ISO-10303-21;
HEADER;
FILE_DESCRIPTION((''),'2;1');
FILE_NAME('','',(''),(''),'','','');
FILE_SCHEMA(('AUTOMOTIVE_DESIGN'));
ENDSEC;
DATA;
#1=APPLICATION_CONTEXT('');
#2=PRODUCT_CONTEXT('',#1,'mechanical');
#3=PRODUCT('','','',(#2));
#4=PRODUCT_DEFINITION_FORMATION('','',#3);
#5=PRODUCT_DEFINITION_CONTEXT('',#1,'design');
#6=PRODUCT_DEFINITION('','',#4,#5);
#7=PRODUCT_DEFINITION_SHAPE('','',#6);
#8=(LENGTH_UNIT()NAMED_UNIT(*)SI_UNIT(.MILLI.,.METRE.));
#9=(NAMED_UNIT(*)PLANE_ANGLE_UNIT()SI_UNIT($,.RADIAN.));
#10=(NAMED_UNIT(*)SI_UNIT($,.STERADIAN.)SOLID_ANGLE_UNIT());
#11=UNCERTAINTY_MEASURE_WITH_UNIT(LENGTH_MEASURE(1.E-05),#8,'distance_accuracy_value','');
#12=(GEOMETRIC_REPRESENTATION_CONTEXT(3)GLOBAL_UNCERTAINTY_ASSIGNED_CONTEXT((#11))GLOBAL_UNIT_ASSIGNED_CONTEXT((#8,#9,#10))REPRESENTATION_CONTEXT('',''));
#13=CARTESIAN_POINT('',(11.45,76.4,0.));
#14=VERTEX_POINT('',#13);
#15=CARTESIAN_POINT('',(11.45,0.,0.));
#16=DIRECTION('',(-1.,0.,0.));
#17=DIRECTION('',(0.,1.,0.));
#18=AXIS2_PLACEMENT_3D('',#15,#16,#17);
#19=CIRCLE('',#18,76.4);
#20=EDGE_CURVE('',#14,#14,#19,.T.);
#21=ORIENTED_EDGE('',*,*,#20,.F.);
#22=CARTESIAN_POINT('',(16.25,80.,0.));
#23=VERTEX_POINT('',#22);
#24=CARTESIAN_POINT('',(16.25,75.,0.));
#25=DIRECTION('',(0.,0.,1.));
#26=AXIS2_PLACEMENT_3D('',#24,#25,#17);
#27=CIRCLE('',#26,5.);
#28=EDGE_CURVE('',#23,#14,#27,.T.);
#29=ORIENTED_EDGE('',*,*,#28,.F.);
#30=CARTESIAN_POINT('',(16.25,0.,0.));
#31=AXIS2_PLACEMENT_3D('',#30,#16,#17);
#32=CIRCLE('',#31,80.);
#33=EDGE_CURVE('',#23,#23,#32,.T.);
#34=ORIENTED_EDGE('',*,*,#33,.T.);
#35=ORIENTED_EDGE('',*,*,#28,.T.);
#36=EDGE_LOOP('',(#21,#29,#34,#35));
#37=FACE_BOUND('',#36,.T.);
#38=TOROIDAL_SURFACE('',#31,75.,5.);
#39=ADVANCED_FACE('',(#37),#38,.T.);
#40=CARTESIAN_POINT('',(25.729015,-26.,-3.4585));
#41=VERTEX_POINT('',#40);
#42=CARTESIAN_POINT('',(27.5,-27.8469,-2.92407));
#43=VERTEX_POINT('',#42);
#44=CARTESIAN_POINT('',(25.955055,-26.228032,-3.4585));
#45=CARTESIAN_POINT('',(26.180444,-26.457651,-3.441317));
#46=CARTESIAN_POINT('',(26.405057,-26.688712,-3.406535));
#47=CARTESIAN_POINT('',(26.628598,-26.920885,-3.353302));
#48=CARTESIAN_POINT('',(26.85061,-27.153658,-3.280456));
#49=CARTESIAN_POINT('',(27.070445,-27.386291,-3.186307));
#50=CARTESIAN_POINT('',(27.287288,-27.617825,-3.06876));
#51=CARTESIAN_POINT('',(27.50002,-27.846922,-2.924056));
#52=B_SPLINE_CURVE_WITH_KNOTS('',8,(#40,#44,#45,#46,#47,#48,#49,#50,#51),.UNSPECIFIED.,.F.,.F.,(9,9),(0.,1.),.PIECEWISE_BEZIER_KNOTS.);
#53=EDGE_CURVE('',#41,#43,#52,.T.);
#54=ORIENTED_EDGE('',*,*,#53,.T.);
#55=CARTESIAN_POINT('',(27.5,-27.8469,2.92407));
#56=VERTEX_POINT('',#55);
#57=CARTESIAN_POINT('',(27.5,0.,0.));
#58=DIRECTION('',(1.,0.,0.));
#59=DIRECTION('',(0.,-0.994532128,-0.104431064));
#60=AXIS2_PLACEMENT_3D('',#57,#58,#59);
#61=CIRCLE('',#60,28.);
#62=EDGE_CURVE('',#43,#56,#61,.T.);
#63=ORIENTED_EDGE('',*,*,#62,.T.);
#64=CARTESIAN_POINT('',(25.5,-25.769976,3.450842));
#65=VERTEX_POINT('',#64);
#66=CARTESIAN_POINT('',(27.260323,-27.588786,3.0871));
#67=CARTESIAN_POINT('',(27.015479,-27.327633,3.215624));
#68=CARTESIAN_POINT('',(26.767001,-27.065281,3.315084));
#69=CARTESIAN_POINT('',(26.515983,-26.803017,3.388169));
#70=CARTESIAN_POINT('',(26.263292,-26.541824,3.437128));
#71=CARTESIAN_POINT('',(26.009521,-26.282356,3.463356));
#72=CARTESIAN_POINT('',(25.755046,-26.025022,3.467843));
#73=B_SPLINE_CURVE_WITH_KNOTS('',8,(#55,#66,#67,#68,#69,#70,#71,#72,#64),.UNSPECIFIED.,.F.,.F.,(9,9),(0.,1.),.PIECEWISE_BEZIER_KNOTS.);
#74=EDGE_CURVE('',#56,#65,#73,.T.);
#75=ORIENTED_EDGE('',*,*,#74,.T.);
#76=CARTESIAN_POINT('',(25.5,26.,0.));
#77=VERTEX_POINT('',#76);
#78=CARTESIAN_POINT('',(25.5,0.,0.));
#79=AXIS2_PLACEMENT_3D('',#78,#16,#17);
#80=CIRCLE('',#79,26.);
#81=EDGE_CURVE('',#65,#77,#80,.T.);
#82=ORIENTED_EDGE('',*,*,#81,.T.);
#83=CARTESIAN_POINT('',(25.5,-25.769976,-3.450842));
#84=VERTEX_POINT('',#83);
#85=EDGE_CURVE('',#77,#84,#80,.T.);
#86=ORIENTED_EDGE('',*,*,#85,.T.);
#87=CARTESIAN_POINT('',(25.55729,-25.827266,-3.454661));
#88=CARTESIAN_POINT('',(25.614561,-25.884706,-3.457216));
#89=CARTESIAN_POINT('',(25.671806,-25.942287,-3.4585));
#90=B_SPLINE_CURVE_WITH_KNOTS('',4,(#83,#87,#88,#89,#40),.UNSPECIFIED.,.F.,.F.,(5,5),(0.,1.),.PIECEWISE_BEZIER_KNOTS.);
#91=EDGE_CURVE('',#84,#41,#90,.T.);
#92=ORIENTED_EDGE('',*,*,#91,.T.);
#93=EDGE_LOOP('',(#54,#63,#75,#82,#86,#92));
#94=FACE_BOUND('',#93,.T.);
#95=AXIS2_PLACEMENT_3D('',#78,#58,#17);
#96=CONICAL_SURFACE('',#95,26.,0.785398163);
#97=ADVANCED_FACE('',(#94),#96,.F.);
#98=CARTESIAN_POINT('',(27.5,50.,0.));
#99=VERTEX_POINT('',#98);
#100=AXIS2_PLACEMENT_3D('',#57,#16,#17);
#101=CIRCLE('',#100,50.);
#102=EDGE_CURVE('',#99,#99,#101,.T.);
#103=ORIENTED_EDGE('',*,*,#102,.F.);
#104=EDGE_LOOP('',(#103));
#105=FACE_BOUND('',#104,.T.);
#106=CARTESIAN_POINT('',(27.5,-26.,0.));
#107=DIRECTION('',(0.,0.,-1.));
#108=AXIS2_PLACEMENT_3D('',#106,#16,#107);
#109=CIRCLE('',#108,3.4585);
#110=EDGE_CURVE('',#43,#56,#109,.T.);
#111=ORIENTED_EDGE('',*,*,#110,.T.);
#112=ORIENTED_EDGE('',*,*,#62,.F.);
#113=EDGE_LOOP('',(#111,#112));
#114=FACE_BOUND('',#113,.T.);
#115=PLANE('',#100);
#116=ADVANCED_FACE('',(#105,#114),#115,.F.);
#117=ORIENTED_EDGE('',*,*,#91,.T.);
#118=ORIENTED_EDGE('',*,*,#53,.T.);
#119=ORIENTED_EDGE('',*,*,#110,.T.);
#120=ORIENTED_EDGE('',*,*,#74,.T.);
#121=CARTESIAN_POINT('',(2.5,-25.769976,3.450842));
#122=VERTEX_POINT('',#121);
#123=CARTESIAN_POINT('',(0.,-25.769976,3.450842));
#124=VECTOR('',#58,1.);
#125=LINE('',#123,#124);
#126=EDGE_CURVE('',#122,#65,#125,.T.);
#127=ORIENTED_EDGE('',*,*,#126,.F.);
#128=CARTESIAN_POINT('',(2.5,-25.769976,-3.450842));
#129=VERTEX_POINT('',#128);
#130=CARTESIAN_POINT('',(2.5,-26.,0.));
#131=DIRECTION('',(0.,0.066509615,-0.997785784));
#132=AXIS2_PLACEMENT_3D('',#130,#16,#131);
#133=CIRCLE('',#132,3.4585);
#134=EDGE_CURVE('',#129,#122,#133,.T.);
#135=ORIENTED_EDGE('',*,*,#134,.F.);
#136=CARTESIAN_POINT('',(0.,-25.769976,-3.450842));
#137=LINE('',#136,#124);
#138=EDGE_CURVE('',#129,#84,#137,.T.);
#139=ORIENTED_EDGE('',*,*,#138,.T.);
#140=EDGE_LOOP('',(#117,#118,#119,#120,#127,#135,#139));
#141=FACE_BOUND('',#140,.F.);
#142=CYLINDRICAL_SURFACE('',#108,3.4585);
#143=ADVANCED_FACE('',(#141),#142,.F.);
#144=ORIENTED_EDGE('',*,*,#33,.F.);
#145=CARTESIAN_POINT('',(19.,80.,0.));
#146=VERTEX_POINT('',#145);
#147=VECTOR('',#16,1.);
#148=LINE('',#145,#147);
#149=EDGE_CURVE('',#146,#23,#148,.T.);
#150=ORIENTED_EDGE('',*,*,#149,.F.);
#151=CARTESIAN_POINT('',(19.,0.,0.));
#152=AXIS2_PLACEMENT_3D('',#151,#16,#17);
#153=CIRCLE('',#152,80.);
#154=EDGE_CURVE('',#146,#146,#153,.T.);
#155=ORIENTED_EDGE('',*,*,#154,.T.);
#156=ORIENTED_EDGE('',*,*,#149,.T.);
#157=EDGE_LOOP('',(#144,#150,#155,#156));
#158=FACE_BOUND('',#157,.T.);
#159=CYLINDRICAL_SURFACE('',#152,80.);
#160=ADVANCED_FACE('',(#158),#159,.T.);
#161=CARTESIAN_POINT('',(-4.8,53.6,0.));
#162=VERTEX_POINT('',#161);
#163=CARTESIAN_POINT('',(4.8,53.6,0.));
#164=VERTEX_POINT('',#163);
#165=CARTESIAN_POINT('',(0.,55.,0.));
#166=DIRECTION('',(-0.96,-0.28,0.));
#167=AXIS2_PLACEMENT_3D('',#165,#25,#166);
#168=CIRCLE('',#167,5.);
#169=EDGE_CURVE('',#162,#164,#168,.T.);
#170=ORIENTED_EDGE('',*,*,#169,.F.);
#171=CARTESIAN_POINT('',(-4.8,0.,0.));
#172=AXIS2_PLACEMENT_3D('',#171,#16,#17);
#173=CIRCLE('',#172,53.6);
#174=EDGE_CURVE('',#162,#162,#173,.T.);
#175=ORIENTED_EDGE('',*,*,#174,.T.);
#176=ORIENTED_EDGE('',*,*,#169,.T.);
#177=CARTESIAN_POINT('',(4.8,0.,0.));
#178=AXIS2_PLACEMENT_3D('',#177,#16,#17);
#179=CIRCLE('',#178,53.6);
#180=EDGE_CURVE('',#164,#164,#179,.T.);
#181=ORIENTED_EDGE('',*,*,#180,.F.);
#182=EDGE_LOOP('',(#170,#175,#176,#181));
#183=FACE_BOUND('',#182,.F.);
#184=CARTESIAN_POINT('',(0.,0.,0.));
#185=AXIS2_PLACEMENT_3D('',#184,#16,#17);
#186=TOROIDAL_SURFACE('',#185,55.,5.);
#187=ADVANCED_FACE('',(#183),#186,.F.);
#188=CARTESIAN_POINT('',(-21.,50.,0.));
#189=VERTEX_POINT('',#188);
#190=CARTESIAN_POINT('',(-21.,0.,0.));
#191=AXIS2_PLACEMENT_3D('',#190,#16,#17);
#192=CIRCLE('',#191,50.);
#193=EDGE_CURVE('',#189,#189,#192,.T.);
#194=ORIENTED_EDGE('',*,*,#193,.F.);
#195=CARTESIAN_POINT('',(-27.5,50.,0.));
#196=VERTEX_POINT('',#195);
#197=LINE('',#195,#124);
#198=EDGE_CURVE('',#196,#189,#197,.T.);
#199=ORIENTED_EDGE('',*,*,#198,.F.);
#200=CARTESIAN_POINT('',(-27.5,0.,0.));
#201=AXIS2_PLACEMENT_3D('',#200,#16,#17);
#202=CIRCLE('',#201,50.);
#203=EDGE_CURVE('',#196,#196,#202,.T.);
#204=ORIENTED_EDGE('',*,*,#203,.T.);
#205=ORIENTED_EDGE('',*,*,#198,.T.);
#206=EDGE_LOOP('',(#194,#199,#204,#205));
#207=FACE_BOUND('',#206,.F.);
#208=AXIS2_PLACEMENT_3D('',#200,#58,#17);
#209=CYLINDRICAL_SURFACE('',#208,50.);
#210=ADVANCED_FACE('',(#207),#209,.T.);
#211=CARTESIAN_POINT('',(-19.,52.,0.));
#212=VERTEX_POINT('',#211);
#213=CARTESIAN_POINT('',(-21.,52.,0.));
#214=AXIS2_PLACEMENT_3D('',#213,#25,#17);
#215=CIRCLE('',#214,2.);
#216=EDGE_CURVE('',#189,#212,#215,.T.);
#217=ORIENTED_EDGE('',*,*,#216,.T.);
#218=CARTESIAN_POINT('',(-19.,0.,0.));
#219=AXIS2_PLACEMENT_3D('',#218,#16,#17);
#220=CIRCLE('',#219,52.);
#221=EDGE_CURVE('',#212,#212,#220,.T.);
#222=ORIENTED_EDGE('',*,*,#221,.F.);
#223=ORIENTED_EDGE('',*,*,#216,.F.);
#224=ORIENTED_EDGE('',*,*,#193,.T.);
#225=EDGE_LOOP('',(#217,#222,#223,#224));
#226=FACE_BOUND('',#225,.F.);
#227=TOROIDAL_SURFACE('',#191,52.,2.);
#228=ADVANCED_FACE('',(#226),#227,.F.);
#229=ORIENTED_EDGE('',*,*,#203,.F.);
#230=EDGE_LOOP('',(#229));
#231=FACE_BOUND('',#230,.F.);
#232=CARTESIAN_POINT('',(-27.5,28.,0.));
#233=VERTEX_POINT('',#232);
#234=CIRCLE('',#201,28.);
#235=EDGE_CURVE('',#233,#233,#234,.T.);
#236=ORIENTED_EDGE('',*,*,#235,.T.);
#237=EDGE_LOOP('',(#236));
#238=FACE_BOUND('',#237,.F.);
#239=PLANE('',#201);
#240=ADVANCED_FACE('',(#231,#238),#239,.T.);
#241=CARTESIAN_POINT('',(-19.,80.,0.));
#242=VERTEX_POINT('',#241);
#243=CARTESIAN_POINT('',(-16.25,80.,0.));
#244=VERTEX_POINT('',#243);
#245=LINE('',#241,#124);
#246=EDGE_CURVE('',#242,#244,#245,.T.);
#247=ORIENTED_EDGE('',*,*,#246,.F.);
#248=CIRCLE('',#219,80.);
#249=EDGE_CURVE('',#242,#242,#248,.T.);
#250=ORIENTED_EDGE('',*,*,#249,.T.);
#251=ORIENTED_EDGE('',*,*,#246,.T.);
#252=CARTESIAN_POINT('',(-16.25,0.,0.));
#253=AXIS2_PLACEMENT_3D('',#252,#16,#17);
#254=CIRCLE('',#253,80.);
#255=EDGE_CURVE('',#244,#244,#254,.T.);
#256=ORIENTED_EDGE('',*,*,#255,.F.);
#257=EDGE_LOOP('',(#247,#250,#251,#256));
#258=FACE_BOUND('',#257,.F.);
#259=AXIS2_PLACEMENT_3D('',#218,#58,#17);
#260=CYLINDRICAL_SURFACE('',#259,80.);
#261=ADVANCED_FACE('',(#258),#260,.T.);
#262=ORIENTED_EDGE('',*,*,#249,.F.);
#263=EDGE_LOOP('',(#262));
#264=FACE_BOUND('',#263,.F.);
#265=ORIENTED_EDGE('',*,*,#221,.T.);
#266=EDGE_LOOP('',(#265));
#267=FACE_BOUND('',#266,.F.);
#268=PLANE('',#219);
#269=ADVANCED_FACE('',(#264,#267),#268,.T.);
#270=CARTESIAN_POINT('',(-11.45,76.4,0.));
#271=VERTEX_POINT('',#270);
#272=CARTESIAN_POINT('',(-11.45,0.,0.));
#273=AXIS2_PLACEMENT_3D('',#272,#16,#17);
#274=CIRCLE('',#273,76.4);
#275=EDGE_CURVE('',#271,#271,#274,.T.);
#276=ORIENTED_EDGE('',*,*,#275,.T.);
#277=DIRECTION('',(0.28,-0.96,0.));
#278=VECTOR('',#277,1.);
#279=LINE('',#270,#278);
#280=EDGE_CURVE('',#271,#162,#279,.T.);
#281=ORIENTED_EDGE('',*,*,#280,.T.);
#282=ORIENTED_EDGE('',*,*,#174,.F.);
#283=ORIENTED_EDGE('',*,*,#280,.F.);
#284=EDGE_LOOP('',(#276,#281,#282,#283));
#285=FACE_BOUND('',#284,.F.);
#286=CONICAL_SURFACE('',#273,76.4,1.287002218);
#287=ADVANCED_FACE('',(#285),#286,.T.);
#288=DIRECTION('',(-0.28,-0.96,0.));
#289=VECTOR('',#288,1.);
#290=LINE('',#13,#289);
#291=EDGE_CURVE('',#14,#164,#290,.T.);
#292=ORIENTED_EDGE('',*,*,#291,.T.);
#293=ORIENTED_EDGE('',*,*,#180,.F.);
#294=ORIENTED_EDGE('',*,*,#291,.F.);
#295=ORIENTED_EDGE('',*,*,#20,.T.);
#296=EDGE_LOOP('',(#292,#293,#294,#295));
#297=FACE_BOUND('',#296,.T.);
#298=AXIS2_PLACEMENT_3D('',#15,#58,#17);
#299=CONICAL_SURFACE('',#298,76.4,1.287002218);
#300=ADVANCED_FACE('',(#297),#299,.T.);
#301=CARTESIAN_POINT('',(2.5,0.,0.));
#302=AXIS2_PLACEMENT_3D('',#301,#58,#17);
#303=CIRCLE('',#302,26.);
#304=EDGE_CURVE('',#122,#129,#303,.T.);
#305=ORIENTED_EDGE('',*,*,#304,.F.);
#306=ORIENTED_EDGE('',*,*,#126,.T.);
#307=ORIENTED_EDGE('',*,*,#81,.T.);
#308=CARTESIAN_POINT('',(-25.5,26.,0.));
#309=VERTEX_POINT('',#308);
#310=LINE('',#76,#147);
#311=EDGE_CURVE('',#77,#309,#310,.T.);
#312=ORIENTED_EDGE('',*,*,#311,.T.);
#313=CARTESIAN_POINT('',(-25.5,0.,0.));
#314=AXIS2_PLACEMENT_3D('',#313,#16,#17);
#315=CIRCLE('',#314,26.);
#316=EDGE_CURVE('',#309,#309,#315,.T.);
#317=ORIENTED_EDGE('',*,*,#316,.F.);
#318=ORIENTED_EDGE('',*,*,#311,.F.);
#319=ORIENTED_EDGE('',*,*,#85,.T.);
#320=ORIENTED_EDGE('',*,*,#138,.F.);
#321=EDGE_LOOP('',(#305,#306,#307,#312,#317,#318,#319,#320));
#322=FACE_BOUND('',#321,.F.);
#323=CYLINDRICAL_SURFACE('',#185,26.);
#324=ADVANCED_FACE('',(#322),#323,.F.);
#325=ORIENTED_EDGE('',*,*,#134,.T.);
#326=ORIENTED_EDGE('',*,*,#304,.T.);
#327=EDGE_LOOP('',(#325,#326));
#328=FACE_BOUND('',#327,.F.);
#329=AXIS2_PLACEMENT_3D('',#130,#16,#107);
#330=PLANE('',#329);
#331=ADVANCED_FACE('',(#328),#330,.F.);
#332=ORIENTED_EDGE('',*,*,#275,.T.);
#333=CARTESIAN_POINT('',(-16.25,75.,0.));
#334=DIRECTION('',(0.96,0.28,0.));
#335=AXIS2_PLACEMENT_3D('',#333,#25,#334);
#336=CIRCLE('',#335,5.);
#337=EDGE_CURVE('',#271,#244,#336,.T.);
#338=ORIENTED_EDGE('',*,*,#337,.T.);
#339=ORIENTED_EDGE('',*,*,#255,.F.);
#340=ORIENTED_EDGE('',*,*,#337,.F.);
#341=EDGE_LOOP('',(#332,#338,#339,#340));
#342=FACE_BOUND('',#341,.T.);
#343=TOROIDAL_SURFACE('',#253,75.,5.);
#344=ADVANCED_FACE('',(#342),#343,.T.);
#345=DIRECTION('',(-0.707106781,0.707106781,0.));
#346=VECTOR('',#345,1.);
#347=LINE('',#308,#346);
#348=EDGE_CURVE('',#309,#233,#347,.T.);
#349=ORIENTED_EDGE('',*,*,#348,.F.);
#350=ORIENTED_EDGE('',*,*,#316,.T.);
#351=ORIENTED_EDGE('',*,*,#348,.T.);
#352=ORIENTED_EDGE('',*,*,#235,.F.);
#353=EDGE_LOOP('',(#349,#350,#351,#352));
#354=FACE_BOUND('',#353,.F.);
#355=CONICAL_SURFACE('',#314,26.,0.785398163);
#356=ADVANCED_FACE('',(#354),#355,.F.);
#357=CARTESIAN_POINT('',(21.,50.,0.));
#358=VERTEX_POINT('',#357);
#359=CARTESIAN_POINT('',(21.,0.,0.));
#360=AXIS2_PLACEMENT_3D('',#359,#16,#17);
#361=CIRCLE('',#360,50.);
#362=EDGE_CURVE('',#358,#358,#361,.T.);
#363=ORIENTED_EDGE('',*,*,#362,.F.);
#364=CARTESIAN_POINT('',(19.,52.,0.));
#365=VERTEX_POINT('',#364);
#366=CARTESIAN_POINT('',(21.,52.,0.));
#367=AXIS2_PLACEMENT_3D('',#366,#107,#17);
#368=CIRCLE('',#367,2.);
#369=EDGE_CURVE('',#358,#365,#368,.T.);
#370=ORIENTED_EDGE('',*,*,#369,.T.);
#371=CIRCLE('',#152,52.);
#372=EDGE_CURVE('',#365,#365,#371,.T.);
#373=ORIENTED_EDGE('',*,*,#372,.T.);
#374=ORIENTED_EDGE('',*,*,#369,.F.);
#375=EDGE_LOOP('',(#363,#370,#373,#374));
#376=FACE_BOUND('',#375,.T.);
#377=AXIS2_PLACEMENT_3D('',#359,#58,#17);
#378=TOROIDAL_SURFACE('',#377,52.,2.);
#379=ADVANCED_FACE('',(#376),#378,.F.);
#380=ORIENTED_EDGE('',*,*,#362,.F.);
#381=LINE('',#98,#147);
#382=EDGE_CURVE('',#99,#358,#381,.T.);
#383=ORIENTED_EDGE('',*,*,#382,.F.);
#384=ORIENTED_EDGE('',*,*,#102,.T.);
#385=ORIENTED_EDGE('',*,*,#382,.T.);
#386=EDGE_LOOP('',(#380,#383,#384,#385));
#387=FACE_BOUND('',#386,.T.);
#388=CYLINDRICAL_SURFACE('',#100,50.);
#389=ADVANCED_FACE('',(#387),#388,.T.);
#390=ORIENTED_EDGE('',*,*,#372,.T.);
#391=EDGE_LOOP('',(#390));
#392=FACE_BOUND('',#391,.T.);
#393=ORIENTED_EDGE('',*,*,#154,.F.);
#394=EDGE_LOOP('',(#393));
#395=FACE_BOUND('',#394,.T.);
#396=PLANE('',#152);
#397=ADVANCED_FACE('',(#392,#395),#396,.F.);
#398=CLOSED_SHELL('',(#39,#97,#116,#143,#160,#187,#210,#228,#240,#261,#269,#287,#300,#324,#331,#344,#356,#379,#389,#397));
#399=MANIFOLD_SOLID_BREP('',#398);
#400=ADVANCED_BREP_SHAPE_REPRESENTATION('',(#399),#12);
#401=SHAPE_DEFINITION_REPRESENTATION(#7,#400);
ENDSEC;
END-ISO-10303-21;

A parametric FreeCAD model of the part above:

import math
import FreeCAD as App
import Part
import Sketcher
from FreeCAD import Vector


def edges_at(feature, points):
    """Names of the edges that pass closest to the given points."""
    edges = feature.Shape.Edges
    near = lambda p: min(range(len(edges)), key=lambda i: edges[i].distToShape(Part.Vertex(*p))[0])
    return sorted({f"Edge{near(p) + 1}" for p in points})

doc = App.newDocument("Part")
body = doc.addObject("PartDesign::Body", "Body")

# Sketch on XY plane
sketch1 = body.newObject("Sketcher::SketchObject", "Sketch")
sketch1.AttachmentSupport = (doc.getObject("XY_Plane"), [""])
sketch1.MapMode = "FlatFace"
sketch1.addGeometry([
    Part.LineSegment(Vector(-25.5, 26, 0), Vector(25.5, 26, 0)),  # 0
    Part.LineSegment(Vector(25.5, 26, 0), Vector(27.5, 28, 0)),  # 1
    Part.LineSegment(Vector(27.5, 28, 0), Vector(27.5, 50, 0)),  # 2
    Part.LineSegment(Vector(27.5, 50, 0), Vector(19, 50, 0)),  # 3
    Part.LineSegment(Vector(19, 50, 0), Vector(19, 80, 0)),  # 4
    Part.LineSegment(Vector(19, 80, 0), Vector(16.2, 80, 0)),  # 5
    Part.ArcOfCircle(Part.Circle(Vector(16.2, 75, 0), Vector(0, 0, 1), 5), math.radians(90), math.radians(164)),  # 6
    Part.LineSegment(Vector(11.4, 76.4, 0), Vector(4.8, 53.6, 0)),  # 7
    Part.ArcOfCircle(Part.Circle(Vector(0, 55, 0), Vector(0, 0, 1), 5), math.radians(-164), math.radians(-16)),  # 8
    Part.LineSegment(Vector(-4.8, 53.6, 0), Vector(-11.4, 76.4, 0)),  # 9
    Part.ArcOfCircle(Part.Circle(Vector(-16.2, 75, 0), Vector(0, 0, 1), 5), math.radians(16), math.radians(90)),  # 10
    Part.LineSegment(Vector(-16.2, 80, 0), Vector(-19, 80, 0)),  # 11
    Part.LineSegment(Vector(-19, 80, 0), Vector(-19, 50, 0)),  # 12
    Part.LineSegment(Vector(-19, 50, 0), Vector(-27.5, 50, 0)),  # 13
    Part.LineSegment(Vector(-27.5, 50, 0), Vector(-27.5, 28, 0)),  # 14
    Part.LineSegment(Vector(-27.5, 28, 0), Vector(-25.5, 26, 0)),  # 15
], False)
sketch1.addConstraint([
    Sketcher.Constraint("Coincident", 0, 2, 1, 1),
    Sketcher.Constraint("Coincident", 1, 2, 2, 1),
    Sketcher.Constraint("Coincident", 2, 2, 3, 1),
    Sketcher.Constraint("Coincident", 3, 2, 4, 1),
    Sketcher.Constraint("Coincident", 4, 2, 5, 1),
    Sketcher.Constraint("Tangent", 5, 2, 6, 1),
    Sketcher.Constraint("Tangent", 6, 2, 7, 1),
    Sketcher.Constraint("Tangent", 7, 2, 8, 2),
    Sketcher.Constraint("Tangent", 8, 1, 9, 1),
    Sketcher.Constraint("Tangent", 9, 2, 10, 1),
    Sketcher.Constraint("Tangent", 10, 2, 11, 1),
    Sketcher.Constraint("Coincident", 11, 2, 12, 1),
    Sketcher.Constraint("Coincident", 12, 2, 13, 1),
    Sketcher.Constraint("Coincident", 13, 2, 14, 1),
    Sketcher.Constraint("Coincident", 14, 2, 15, 1),
    Sketcher.Constraint("Coincident", 15, 2, 0, 1),
    Sketcher.Constraint("Horizontal", 0),
    Sketcher.Constraint("Vertical", 2),
    Sketcher.Constraint("Horizontal", 3),
    Sketcher.Constraint("Vertical", 4),
    Sketcher.Constraint("Horizontal", 5),
    Sketcher.Constraint("Horizontal", 11),
    Sketcher.Constraint("Vertical", 12),
    Sketcher.Constraint("Horizontal", 13),
    Sketcher.Constraint("Vertical", 14),
    Sketcher.Constraint("Equal", 6, 8),
    Sketcher.Constraint("Equal", 8, 10),
    Sketcher.Constraint("Symmetric", 6, 3, 10, 3, -2),
    Sketcher.Constraint("Symmetric", 3, 2, 12, 2, -2),
    Sketcher.Constraint("Symmetric", 1, 2, 14, 2, -2),
    Sketcher.Constraint("PointOnObject", 8, 3, -2),
    Sketcher.Constraint("Perpendicular", 1, 15),
    Sketcher.Constraint("Equal", 1, 15),
    Sketcher.Constraint("Radius", 6, 5.0),
    Sketcher.Constraint("DistanceY", -1, 1, 8, 3, 55.0),
    Sketcher.Constraint("DistanceX", 0, 2, 1, 2, 2.0),
    Sketcher.Constraint("DistanceY", 2, 2, 6, 3, 25.0),
    Sketcher.Constraint("DistanceY", 2, 2, 8, 3, 5.0),
    Sketcher.Constraint("DistanceX", 0, 1, 0, 2, 51.0),
    Sketcher.Constraint("DistanceY", 2, 1, 2, 2, 22.0),
    Sketcher.Constraint("DistanceX", 3, 2, 3, 1, 8.5),
    Sketcher.Constraint("DistanceX", 5, 2, 5, 1, 2.75),
])
revolution = body.newObject("PartDesign::Revolution", "Revolution")
revolution.Profile = sketch1
revolution.ReferenceAxis = (sketch1, ["H_Axis"])
revolution.Angle = 360

# Sketch on YZ plane
sketch2 = body.newObject("Sketcher::SketchObject", "Sketch001")
sketch2.AttachmentSupport = (doc.getObject("YZ_Plane"), [""])
sketch2.MapMode = "FlatFace"
sketch2.AttachmentOffset = App.Placement(Vector(0, 0, 27.5), App.Rotation())
sketch2.addGeometry(Part.Circle(Vector(-26, 0, 0), Vector(0, 0, 1), 3.5), False)
sketch2.addConstraint([
    Sketcher.Constraint("PointOnObject", 0, 3, -1),
    Sketcher.Constraint("Diameter", 0, 6.917),
    Sketcher.Constraint("DistanceX", 0, 3, -1, 1, 26.0),
])
doc.recompute()
hole = body.newObject("PartDesign::Hole", "Hole")
hole.Profile = sketch2
hole.ThreadType = "None"
hole.Diameter = 6.917
hole.DepthType = "Dimension"
hole.Depth = 25
hole.DrillPoint = "Flat"
doc.recompute()

fillet = body.newObject("PartDesign::Fillet", "Fillet")
fillet.Base = (hole, edges_at(hole, [(19, -50, 0), (-19, -50, 0)]))
fillet.Radius = 2

doc.recompute()
